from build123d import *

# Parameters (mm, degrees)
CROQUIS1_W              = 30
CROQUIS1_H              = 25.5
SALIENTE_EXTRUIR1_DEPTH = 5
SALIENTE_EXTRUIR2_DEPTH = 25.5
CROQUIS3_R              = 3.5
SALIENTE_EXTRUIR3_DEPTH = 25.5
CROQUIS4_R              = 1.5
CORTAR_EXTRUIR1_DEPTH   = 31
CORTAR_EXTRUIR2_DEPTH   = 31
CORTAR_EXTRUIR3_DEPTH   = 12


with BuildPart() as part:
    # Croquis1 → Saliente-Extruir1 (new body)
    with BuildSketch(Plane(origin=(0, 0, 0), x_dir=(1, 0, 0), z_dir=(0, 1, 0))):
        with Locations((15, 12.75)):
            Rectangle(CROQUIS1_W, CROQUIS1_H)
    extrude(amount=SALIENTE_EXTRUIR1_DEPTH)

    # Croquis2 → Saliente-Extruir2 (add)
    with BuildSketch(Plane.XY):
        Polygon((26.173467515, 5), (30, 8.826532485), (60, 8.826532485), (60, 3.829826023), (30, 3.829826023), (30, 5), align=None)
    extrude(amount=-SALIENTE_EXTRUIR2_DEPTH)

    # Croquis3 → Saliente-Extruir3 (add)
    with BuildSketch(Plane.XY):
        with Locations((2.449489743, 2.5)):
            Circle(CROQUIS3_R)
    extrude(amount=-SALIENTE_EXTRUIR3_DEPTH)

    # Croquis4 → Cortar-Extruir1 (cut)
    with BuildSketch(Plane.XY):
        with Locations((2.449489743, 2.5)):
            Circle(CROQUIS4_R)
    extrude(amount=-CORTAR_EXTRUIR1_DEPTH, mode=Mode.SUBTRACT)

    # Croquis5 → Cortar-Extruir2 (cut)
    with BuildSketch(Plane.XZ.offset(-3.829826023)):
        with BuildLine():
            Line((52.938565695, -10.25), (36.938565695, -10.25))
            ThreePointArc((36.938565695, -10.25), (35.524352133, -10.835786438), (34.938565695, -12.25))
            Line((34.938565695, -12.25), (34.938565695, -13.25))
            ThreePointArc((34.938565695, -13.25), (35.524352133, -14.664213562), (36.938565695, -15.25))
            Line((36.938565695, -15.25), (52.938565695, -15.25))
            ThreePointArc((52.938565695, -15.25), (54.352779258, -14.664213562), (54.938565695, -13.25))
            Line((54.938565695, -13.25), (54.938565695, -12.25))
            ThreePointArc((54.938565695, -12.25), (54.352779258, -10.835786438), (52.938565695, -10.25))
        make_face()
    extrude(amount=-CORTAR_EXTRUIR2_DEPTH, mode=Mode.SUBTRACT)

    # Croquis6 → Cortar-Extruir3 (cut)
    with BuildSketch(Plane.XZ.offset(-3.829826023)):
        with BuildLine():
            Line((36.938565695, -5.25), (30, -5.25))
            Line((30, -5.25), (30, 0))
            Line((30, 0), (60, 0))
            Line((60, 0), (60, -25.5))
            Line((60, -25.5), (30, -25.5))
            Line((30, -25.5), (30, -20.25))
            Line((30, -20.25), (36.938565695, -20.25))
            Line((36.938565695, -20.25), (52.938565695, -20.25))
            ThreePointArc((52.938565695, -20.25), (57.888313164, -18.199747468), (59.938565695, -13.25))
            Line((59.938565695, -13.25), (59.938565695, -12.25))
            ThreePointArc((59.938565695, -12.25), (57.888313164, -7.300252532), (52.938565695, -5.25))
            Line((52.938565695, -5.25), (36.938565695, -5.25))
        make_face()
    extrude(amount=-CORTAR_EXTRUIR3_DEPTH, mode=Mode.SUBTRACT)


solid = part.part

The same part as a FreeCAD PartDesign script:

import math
import FreeCAD as App
import Part
import Sketcher
Q = App.Units.Quantity

doc = App.newDocument("Part")
params = doc.addObject("Spreadsheet::Sheet", "Params")
for row, (alias, value) in enumerate([
    ("sketch1_width", "30 mm"),
    ("sketch1_height", "25.5 mm"),
    ("pad1_length", "5 mm"),
    ("sketch2_width", "30 mm"),
    ("pad2_length", "25.5 mm"),
    ("sketch3_diameter", "7 mm"),
    ("pad3_length", "25.5 mm"),
    ("sketch4_diameter", "3 mm"),
    ("pocket1_length", "31 mm"),
    ("sketch5_radius", "2 mm"),
    ("sketch5_width", "16 mm"),
    ("sketch5_height", "1 mm"),
    ("pocket2_length", "31 mm"),
    ("sketch6_radius", "7 mm"),
    ("sketch6_width", "30 mm"),
    ("sketch6_height", "1 mm"),
    ("sketch6_height2", "25.5 mm"),
    ("pocket3_length", "12 mm"),
], start=1):
    params.set(f"A{row}", alias)
    params.set(f"B{row}", "=" + value)
    params.setAlias(f"B{row}", alias)

body = doc.addObject("PartDesign::Body", "Body")

# Sketch on XZ plane
sketch1 = body.newObject("Sketcher::SketchObject", "Sketch")
sketch1.AttachmentSupport = (doc.getObject("XZ_Plane"), [""])
sketch1.MapMode = "FlatFace"
sketch1.addGeometry(Part.LineSegment(App.Vector(0, -26, 0), App.Vector(0, 0, 0)), False)
sketch1.addGeometry(Part.LineSegment(App.Vector(0, 0, 0), App.Vector(30, 0, 0)), False)
sketch1.addGeometry(Part.LineSegment(App.Vector(30, 0, 0), App.Vector(30, -26, 0)), False)
sketch1.addGeometry(Part.LineSegment(App.Vector(30, -26, 0), App.Vector(0, -26, 0)), False)
sketch1.addConstraint(Sketcher.Constraint("Coincident", 0, 2, 1, 1))
sketch1.addConstraint(Sketcher.Constraint("Coincident", 1, 2, 2, 1))
sketch1.addConstraint(Sketcher.Constraint("Coincident", 2, 2, 3, 1))
sketch1.addConstraint(Sketcher.Constraint("Coincident", 3, 2, 0, 1))
sketch1.addConstraint(Sketcher.Constraint("Vertical", 0))
sketch1.addConstraint(Sketcher.Constraint("Horizontal", 1))
sketch1.addConstraint(Sketcher.Constraint("Vertical", 2))
sketch1.addConstraint(Sketcher.Constraint("Horizontal", 3))
sketch1.addConstraint(Sketcher.Constraint("Coincident", 0, 2, -1, 1))
sketch1.addConstraint(Sketcher.Constraint("DistanceX", 1, 1, 1, 2, Q("30 mm")))
sketch1.addConstraint(Sketcher.Constraint("DistanceY", 0, 1, 0, 2, Q("25.5 mm")))
sketch1.setExpression("Constraints[9]", "Params.sketch1_width")
sketch1.setExpression("Constraints[10]", "Params.sketch1_height")
pad1 = body.newObject("PartDesign::Pad", "Pad")
pad1.Profile = sketch1
pad1.setExpression("Length", "Params.pad1_length")
pad1.Reversed = True

# Sketch on XY plane
sketch2 = body.newObject("Sketcher::SketchObject", "Sketch001")
sketch2.AttachmentSupport = (doc.getObject("XY_Plane"), [""])
sketch2.MapMode = "FlatFace"
sketch2.addGeometry(Part.LineSegment(App.Vector(30, 8.8, 0), App.Vector(26.2, 5, 0)), False)
sketch2.addGeometry(Part.LineSegment(App.Vector(26.2, 5, 0), App.Vector(30, 5, 0)), False)
sketch2.addGeometry(Part.LineSegment(App.Vector(30, 5, 0), App.Vector(30, 3.8, 0)), False)
sketch2.addGeometry(Part.LineSegment(App.Vector(30, 3.8, 0), App.Vector(60, 3.8, 0)), False)
sketch2.addGeometry(Part.LineSegment(App.Vector(60, 3.8, 0), App.Vector(60, 8.8, 0)), False)
sketch2.addGeometry(Part.LineSegment(App.Vector(60, 8.8, 0), App.Vector(30, 8.8, 0)), False)
sketch2.addConstraint(Sketcher.Constraint("Coincident", 0, 2, 1, 1))
sketch2.addConstraint(Sketcher.Constraint("Coincident", 1, 2, 2, 1))
sketch2.addConstraint(Sketcher.Constraint("Coincident", 2, 2, 3, 1))
sketch2.addConstraint(Sketcher.Constraint("Coincident", 3, 2, 4, 1))
sketch2.addConstraint(Sketcher.Constraint("Coincident", 4, 2, 5, 1))
sketch2.addConstraint(Sketcher.Constraint("Coincident", 5, 2, 0, 1))
sketch2.addConstraint(Sketcher.Constraint("Horizontal", 1))
sketch2.addConstraint(Sketcher.Constraint("Vertical", 2))
sketch2.addConstraint(Sketcher.Constraint("Horizontal", 3))
sketch2.addConstraint(Sketcher.Constraint("Vertical", 4))
sketch2.addConstraint(Sketcher.Constraint("Horizontal", 5))
sketch2.addConstraint(Sketcher.Constraint("Vertical", 2, 2, 5, 2))
sketch2.addConstraint(Sketcher.Constraint("DistanceX", 3, 1, 3, 2, Q("30 mm")))
sketch2.addConstraint(Sketcher.Constraint("Angle", 0, Q("-135 deg")))
sketch2.addConstraint(Sketcher.Constraint("DistanceY", -1, 1, 0, 2, Q("5 mm")))
sketch2.addConstraint(Sketcher.Constraint("DistanceX", -1, 1, 1, 2, Q("30 mm")))
sketch2.addConstraint(Sketcher.Constraint("DistanceX", 1, 1, 1, 2, Q("3.826532 mm")))
sketch2.addConstraint(Sketcher.Constraint("DistanceY", 2, 2, 2, 1, Q("1.170174 mm")))
sketch2.setExpression("Constraints[12]", "Params.sketch2_width")
pad2 = body.newObject("PartDesign::Pad", "Pad001")
pad2.Profile = sketch2
pad2.setExpression("Length", "Params.pad2_length")
pad2.Reversed = True

# Sketch on XY plane
sketch3 = body.newObject("Sketcher::SketchObject", "Sketch002")
sketch3.AttachmentSupport = (doc.getObject("XY_Plane"), [""])
sketch3.MapMode = "FlatFace"
sketch3.addGeometry(Part.Circle(App.Vector(2.4, 2.5, 0), App.Vector(0, 0, 1), 3.5), False)
sketch3.addConstraint(Sketcher.Constraint("Diameter", 0, Q("7 mm")))
sketch3.addConstraint(Sketcher.Constraint("DistanceY", -1, 1, 0, 3, Q("2.5 mm")))
sketch3.addConstraint(Sketcher.Constraint("DistanceX", -1, 1, 0, 3, Q("2.44949 mm")))
sketch3.setExpression("Constraints[0]", "Params.sketch3_diameter")
pad3 = body.newObject("PartDesign::Pad", "Pad002")
pad3.Profile = sketch3
pad3.setExpression("Length", "Params.pad3_length")
pad3.Reversed = True

# Sketch on XY plane
sketch4 = body.newObject("Sketcher::SketchObject", "Sketch003")
sketch4.AttachmentSupport = (doc.getObject("XY_Plane"), [""])
sketch4.MapMode = "FlatFace"
sketch4.addGeometry(Part.Circle(App.Vector(2.4, 2.5, 0), App.Vector(0, 0, 1), 1.5), False)
sketch4.addConstraint(Sketcher.Constraint("Diameter", 0, Q("3 mm")))
sketch4.addConstraint(Sketcher.Constraint("DistanceY", -1, 1, 0, 3, Q("2.5 mm")))
sketch4.addConstraint(Sketcher.Constraint("DistanceX", -1, 1, 0, 3, Q("2.44949 mm")))
sketch4.setExpression("Constraints[0]", "Params.sketch4_diameter")
pocket1 = body.newObject("PartDesign::Pocket", "Pocket")
pocket1.Profile = sketch4
pocket1.setExpression("Length", "Params.pocket1_length")

# Sketch on XZ plane
sketch5 = body.newObject("Sketcher::SketchObject", "Sketch004")
sketch5.AttachmentSupport = (doc.getObject("XZ_Plane"), [""])
sketch5.MapMode = "FlatFace"
sketch5.AttachmentOffset = App.Placement(App.Vector(0, 0, -3.829826), App.Rotation())
sketch5.addGeometry(Part.LineSegment(App.Vector(52.9, -10.2, 0), App.Vector(36.9, -10.2, 0)), False)
sketch5.addGeometry(Part.ArcOfCircle(Part.Circle(App.Vector(36.9, -12.3, 0), App.Vector(0, 0, 1), 2), math.radians(90), math.radians(180)), False)
sketch5.addGeometry(Part.LineSegment(App.Vector(34.9, -12.2, 0), App.Vector(34.9, -13.2, 0)), False)
sketch5.addGeometry(Part.ArcOfCircle(Part.Circle(App.Vector(36.9, -13.2, 0), App.Vector(0, 0, 1), 2), math.radians(-180), math.radians(-90)), False)
sketch5.addGeometry(Part.LineSegment(App.Vector(36.9, -15.2, 0), App.Vector(52.9, -15.2, 0)), False)
sketch5.addGeometry(Part.ArcOfCircle(Part.Circle(App.Vector(52.9, -13.2, 0), App.Vector(0, 0, 1), 2), math.radians(-90), math.radians(0)), False)
sketch5.addGeometry(Part.LineSegment(App.Vector(54.9, -13.2, 0), App.Vector(54.9, -12.2, 0)), False)
sketch5.addGeometry(Part.ArcOfCircle(Part.Circle(App.Vector(52.9, -12.2, 0), App.Vector(0, 0, 1), 2), math.radians(0), math.radians(90)), False)
sketch5.addConstraint(Sketcher.Constraint("Tangent", 0, 2, 1, 1))
sketch5.addConstraint(Sketcher.Constraint("Tangent", 1, 2, 2, 1))
sketch5.addConstraint(Sketcher.Constraint("Tangent", 2, 2, 3, 1))
sketch5.addConstraint(Sketcher.Constraint("Tangent", 3, 2, 4, 1))
sketch5.addConstraint(Sketcher.Constraint("Tangent", 4, 2, 5, 1))
sketch5.addConstraint(Sketcher.Constraint("Tangent", 5, 2, 6, 1))
sketch5.addConstraint(Sketcher.Constraint("Tangent", 6, 2, 7, 1))
sketch5.addConstraint(Sketcher.Constraint("Tangent", 7, 2, 0, 1))
sketch5.addConstraint(Sketcher.Constraint("Horizontal", 0))
sketch5.addConstraint(Sketcher.Constraint("Vertical", 2))
sketch5.addConstraint(Sketcher.Constraint("Horizontal", 4))
sketch5.addConstraint(Sketcher.Constraint("Vertical", 6))
sketch5.addConstraint(Sketcher.Constraint("Equal", 1, 3))
sketch5.addConstraint(Sketcher.Constraint("Equal", 3, 5))
sketch5.addConstraint(Sketcher.Constraint("Equal", 5, 7))
sketch5.addConstraint(Sketcher.Constraint("Radius", 1, Q("2 mm")))
sketch5.addConstraint(Sketcher.Constraint("DistanceX", 0, 2, 0, 1, Q("16 mm")))
sketch5.addConstraint(Sketcher.Constraint("DistanceY", 2, 2, 2, 1, Q("1 mm")))
sketch5.addConstraint(Sketcher.Constraint("DistanceY", 1, 3, -1, 1, Q("12.25 mm")))
sketch5.addConstraint(Sketcher.Constraint("DistanceX", -1, 1, 1, 3, Q("36.938566 mm")))
sketch5.setExpression("Constraints[15]", "Params.sketch5_radius")
sketch5.setExpression("Constraints[16]", "Params.sketch5_width")
sketch5.setExpression("Constraints[17]", "Params.sketch5_height")
pocket2 = body.newObject("PartDesign::Pocket", "Pocket001")
pocket2.Profile = sketch5
pocket2.setExpression("Length", "Params.pocket2_length")

# Sketch on XZ plane
sketch6 = body.newObject("Sketcher::SketchObject", "Sketch005")
sketch6.AttachmentSupport = (doc.getObject("XZ_Plane"), [""])
sketch6.MapMode = "FlatFace"
sketch6.AttachmentOffset = App.Placement(App.Vector(0, 0, -3.829826), App.Rotation())
sketch6.addGeometry(Part.LineSegment(App.Vector(30, 0, 0), App.Vector(30, -5.2, 0)), False)
sketch6.addGeometry(Part.LineSegment(App.Vector(30, -5.2, 0), App.Vector(52.9, -5.2, 0)), False)
sketch6.addGeometry(Part.ArcOfCircle(Part.Circle(App.Vector(52.9, -12.2, 0), App.Vector(0, 0, 1), 7), math.radians(0), math.radians(90)), False)
sketch6.addGeometry(Part.LineSegment(App.Vector(59.9, -12.2, 0), App.Vector(59.9, -13.2, 0)), False)
sketch6.addGeometry(Part.ArcOfCircle(Part.Circle(App.Vector(52.9, -13.3, 0), App.Vector(0, 0, 1), 7), math.radians(-90), math.radians(0)), False)
sketch6.addGeometry(Part.LineSegment(App.Vector(52.9, -20.2, 0), App.Vector(30, -20.2, 0)), False)
sketch6.addGeometry(Part.LineSegment(App.Vector(30, -20.2, 0), App.Vector(30, -25.5, 0)), False)
sketch6.addGeometry(Part.LineSegment(App.Vector(30, -25.5, 0), App.Vector(60, -25.5, 0)), False)
sketch6.addGeometry(Part.LineSegment(App.Vector(60, -25.5, 0), App.Vector(60, 0, 0)), False)
sketch6.addGeometry(Part.LineSegment(App.Vector(60, 0, 0), App.Vector(30, 0, 0)), False)
sketch6.addConstraint(Sketcher.Constraint("Coincident", 0, 2, 1, 1))
sketch6.addConstraint(Sketcher.Constraint("Tangent", 1, 2, 2, 2))
sketch6.addConstraint(Sketcher.Constraint("Tangent", 2, 1, 3, 1))
sketch6.addConstraint(Sketcher.Constraint("Tangent", 3, 2, 4, 2))
sketch6.addConstraint(Sketcher.Constraint("Tangent", 4, 1, 5, 1))
sketch6.addConstraint(Sketcher.Constraint("Coincident", 5, 2, 6, 1))
sketch6.addConstraint(Sketcher.Constraint("Coincident", 6, 2, 7, 1))
sketch6.addConstraint(Sketcher.Constraint("Coincident", 7, 2, 8, 1))
sketch6.addConstraint(Sketcher.Constraint("Coincident", 8, 2, 9, 1))
sketch6.addConstraint(Sketcher.Constraint("Coincident", 9, 2, 0, 1))
sketch6.addConstraint(Sketcher.Constraint("Vertical", 0))
sketch6.addConstraint(Sketcher.Constraint("Horizontal", 1))
sketch6.addConstraint(Sketcher.Constraint("Vertical", 3))
sketch6.addConstraint(Sketcher.Constraint("Horizontal", 5))
sketch6.addConstraint(Sketcher.Constraint("Vertical", 6))
sketch6.addConstraint(Sketcher.Constraint("Horizontal", 7))
sketch6.addConstraint(Sketcher.Constraint("Vertical", 8))
sketch6.addConstraint(Sketcher.Constraint("Horizontal", 9))
sketch6.addConstraint(Sketcher.Constraint("Equal", 2, 4))
sketch6.addConstraint(Sketcher.Constraint("PointOnObject", 8, 2, -1))
sketch6.addConstraint(Sketcher.Constraint("Vertical", 0, 2, 5, 2))
sketch6.addConstraint(Sketcher.Constraint("Equal", 0, 6))
sketch6.addConstraint(Sketcher.Constraint("Radius", 2, Q("7 mm")))
sketch6.addConstraint(Sketcher.Constraint("DistanceX", 7, 1, 7, 2, Q("30 mm")))
sketch6.addConstraint(Sketcher.Constraint("DistanceY", 3, 2, 3, 1, Q("1 mm")))
sketch6.addConstraint(Sketcher.Constraint("DistanceY", 8, 1, 8, 2, Q("25.5 mm")))
sketch6.addConstraint(Sketcher.Constraint("DistanceX", -1, 1, 0, 2, Q("30 mm")))
sketch6.addConstraint(Sketcher.Constraint("DistanceX", 1, 1, 1, 2, Q("22.938566 mm")))
sketch6.setExpression("Constraints[22]", "Params.sketch6_radius")
sketch6.setExpression("Constraints[23]", "Params.sketch6_width")
sketch6.setExpression("Constraints[24]", "Params.sketch6_height")
sketch6.setExpression("Constraints[25]", "Params.sketch6_height2")
pocket3 = body.newObject("PartDesign::Pocket", "Pocket002")
pocket3.Profile = sketch6
pocket3.setExpression("Length", "Params.pocket3_length")

doc.recompute()
